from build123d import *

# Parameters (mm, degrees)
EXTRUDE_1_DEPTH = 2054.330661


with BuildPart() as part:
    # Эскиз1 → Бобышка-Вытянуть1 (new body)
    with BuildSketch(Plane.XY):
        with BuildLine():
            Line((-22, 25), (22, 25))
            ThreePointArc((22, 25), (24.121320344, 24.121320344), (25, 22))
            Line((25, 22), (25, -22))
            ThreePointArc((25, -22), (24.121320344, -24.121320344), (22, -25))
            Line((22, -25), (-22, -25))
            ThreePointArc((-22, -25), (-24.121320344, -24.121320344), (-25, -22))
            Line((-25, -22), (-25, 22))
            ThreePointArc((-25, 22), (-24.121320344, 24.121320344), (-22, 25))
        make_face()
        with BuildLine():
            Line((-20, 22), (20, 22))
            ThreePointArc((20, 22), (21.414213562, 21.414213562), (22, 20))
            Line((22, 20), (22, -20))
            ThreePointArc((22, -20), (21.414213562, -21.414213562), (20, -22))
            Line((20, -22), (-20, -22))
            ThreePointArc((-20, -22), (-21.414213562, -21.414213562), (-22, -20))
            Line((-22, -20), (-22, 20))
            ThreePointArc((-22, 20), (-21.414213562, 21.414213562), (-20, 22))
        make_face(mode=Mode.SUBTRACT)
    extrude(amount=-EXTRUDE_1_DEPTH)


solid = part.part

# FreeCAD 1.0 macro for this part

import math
import FreeCAD as App
import Part
import Sketcher

V = App.Vector
Q = App.Units.Quantity

doc = App.newDocument("Part")
body = doc.addObject("PartDesign::Body", "Body")

sketch1 = doc.addObject("Sketcher::SketchObject", "Sketch")
body.addObject(sketch1)
sketch1.AttachmentSupport = (doc.XY_Plane, [""])
sketch1.MapMode = "FlatFace"
sketch1.addGeometry([
    Part.LineSegment(V(22, 25, 0), V(-22, 25, 0)),
    Part.ArcOfCircle(Part.Circle(V(-22, 22, 0), V(0, 0, 1), 3), math.radians(90), math.radians(180)),
    Part.LineSegment(V(-25, 22, 0), V(-25, -22, 0)),
    Part.ArcOfCircle(Part.Circle(V(-22, -22, 0), V(0, 0, 1), 3), math.radians(180), math.radians(270)),
    Part.LineSegment(V(-22, -25, 0), V(22, -25, 0)),
    Part.ArcOfCircle(Part.Circle(V(22, -22, 0), V(0, 0, 1), 3), math.radians(-90), math.radians(0)),
    Part.LineSegment(V(25, -22, 0), V(25, 22, 0)),
    Part.ArcOfCircle(Part.Circle(V(22, 22, 0), V(0, 0, 1), 3), math.radians(0), math.radians(90)),
    Part.LineSegment(V(-20, 22, 0), V(20, 22, 0)),
    Part.ArcOfCircle(Part.Circle(V(20, 20, 0), V(0, 0, 1), 2), math.radians(0), math.radians(90)),
    Part.LineSegment(V(22, 20, 0), V(22, -20, 0)),
    Part.ArcOfCircle(Part.Circle(V(20, -20, 0), V(0, 0, 1), 2), math.radians(-90), math.radians(0)),
    Part.LineSegment(V(20, -22, 0), V(-20, -22, 0)),
    Part.ArcOfCircle(Part.Circle(V(-20, -20, 0), V(0, 0, 1), 2), math.radians(-180), math.radians(-90)),
    Part.LineSegment(V(-22, -20, 0), V(-22, 20, 0)),
    Part.ArcOfCircle(Part.Circle(V(-20, 20, 0), V(0, 0, 1), 2), math.radians(90), math.radians(180)),
], False)
sketch1.addConstraint([
    Sketcher.Constraint("Tangent", 0, 2, 1, 1),
    Sketcher.Constraint("Tangent", 1, 2, 2, 1),
    Sketcher.Constraint("Tangent", 2, 2, 3, 1),
    Sketcher.Constraint("Tangent", 3, 2, 4, 1),
    Sketcher.Constraint("Tangent", 4, 2, 5, 1),
    Sketcher.Constraint("Tangent", 5, 2, 6, 1),
    Sketcher.Constraint("Tangent", 6, 2, 7, 1),
    Sketcher.Constraint("Tangent", 7, 2, 0, 1),
    Sketcher.Constraint("Tangent", 8, 2, 9, 2),
    Sketcher.Constraint("Tangent", 9, 1, 10, 1),
    Sketcher.Constraint("Tangent", 10, 2, 11, 2),
    Sketcher.Constraint("Tangent", 11, 1, 12, 1),
    Sketcher.Constraint("Tangent", 12, 2, 13, 2),
    Sketcher.Constraint("Tangent", 13, 1, 14, 1),
    Sketcher.Constraint("Tangent", 14, 2, 15, 2),
    Sketcher.Constraint("Tangent", 15, 1, 8, 1),
    Sketcher.Constraint("Horizontal", 0),
    Sketcher.Constraint("Vertical", 2),
    Sketcher.Constraint("Horizontal", 4),
    Sketcher.Constraint("Vertical", 6),
    Sketcher.Constraint("Horizontal", 8),
    Sketcher.Constraint("Vertical", 10),
    Sketcher.Constraint("Horizontal", 12),
    Sketcher.Constraint("Vertical", 14),
    Sketcher.Constraint("Equal", 1, 3),
    Sketcher.Constraint("Equal", 3, 5),
    Sketcher.Constraint("Equal", 5, 7),
    Sketcher.Constraint("Equal", 9, 11),
    Sketcher.Constraint("Equal", 11, 13),
    Sketcher.Constraint("Equal", 13, 15),
    Sketcher.Constraint("Symmetric", 1, 3, 5, 3, -1, 1),
    Sketcher.Constraint("Symmetric", 9, 3, 13, 3, -1, 1),
    Sketcher.Constraint("Horizontal", 6, 2, 8, 2),
    Sketcher.Constraint("Vertical", 7, 2, 9, 1),
    Sketcher.Constraint("Equal", 4, 2),
    Sketcher.Constraint("Radius", 1, Q("3 mm")),
    Sketcher.Constraint("Radius", 9, Q("2 mm")),
    Sketcher.Constraint("DistanceX", 0, 2, 0, 1, Q("44 mm")),
])
pad1 = doc.addObject("PartDesign::Pad", "Pad")
body.addObject(pad1)
pad1.Profile = sketch1
pad1.Length = 2054.330661
pad1.Reversed = True

doc.recompute()
